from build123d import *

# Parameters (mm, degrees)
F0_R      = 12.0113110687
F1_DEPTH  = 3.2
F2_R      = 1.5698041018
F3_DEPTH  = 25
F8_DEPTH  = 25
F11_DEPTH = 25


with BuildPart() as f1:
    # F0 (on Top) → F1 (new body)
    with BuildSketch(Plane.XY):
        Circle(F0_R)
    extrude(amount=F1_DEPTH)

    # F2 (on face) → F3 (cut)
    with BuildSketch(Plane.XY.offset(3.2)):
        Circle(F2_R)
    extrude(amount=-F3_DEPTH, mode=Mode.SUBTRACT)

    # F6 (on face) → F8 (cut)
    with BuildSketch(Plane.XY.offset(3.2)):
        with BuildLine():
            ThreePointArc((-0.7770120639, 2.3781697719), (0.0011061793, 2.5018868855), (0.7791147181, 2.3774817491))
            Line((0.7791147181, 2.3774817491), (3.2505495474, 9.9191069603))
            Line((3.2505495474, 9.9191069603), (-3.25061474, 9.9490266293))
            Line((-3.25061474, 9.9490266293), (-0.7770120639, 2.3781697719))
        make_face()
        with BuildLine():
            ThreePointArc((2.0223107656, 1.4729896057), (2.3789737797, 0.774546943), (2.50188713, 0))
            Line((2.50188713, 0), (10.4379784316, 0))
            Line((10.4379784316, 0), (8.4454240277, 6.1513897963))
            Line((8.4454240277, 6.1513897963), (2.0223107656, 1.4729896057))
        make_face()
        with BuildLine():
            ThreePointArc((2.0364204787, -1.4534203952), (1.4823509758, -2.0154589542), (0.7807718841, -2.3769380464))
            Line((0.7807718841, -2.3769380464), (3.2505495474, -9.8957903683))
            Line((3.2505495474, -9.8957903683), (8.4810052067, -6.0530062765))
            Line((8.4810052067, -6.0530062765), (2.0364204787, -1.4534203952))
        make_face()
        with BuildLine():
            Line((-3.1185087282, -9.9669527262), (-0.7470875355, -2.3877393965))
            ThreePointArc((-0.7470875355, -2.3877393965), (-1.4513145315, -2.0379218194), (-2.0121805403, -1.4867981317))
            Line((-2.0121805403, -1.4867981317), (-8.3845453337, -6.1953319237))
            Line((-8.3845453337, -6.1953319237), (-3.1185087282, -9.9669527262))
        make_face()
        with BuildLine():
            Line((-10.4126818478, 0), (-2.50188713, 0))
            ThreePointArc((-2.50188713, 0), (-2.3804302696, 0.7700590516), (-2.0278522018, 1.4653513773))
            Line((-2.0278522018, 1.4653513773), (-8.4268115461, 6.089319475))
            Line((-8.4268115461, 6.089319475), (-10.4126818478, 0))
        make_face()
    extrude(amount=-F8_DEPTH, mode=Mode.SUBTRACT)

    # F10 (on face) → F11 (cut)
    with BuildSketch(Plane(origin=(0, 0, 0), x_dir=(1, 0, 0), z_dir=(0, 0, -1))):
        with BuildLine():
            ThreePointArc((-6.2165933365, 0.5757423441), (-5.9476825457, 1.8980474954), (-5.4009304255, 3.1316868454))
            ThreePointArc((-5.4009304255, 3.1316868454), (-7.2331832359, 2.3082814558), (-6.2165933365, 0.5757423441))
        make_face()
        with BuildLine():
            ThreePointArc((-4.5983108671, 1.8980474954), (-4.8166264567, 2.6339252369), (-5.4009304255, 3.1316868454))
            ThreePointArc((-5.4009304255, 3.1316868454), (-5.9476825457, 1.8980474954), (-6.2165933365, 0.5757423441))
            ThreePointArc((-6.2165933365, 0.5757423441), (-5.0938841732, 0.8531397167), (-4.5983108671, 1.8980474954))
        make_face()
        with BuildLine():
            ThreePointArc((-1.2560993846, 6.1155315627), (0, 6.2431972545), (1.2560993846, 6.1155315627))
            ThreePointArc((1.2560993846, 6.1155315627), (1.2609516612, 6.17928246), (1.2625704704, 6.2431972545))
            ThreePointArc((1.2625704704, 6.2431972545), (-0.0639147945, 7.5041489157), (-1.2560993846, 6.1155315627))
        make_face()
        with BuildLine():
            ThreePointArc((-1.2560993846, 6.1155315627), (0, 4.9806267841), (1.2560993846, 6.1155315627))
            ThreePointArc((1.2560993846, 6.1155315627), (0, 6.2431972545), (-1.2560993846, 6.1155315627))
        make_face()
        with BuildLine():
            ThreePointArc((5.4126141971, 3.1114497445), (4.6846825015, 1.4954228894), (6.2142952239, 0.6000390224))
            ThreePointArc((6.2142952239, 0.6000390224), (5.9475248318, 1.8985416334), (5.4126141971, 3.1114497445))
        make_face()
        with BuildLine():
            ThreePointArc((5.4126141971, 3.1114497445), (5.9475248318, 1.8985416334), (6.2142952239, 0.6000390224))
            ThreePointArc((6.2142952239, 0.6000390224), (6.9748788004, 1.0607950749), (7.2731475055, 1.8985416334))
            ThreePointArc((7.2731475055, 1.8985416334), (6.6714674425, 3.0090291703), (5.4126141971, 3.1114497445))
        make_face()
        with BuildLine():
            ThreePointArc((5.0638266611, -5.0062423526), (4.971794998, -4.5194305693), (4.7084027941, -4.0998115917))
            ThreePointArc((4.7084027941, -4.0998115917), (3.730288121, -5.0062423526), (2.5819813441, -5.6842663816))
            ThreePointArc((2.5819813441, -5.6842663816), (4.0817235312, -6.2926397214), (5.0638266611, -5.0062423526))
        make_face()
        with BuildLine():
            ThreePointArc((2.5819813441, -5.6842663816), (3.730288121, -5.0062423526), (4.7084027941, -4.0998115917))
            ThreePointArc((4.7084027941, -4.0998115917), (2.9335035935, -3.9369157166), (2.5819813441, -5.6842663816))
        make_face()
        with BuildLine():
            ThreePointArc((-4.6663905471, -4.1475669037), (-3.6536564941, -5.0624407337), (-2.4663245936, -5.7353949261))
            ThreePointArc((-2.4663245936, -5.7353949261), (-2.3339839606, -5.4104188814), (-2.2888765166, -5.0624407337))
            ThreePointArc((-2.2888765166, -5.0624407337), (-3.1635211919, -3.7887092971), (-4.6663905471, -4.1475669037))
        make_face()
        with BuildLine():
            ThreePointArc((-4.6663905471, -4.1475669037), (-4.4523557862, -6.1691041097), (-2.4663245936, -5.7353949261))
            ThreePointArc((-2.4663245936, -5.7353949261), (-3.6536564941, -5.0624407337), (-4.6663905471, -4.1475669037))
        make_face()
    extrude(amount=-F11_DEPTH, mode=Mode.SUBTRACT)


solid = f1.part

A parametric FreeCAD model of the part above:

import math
import FreeCAD as App
import Part
import Sketcher
from FreeCAD import Vector
Q = App.Units.Quantity

doc = App.newDocument("Part")
body = doc.addObject("PartDesign::Body", "Body")

sketch1 = doc.addObject("Sketcher::SketchObject", "Sketch")
body.addObject(sketch1)
sketch1.AttachmentSupport = (doc.XY_Plane, [""])
sketch1.MapMode = "FlatFace"
sketch1.addGeometry(Part.Circle(Vector(0, 0, 0), Vector(0, 0, 1), 12), False)
sketch1.addConstraint(Sketcher.Constraint("Coincident", 0, 3, -1, 1))
sketch1.addConstraint(Sketcher.Constraint("Diameter", 0, Q("24.022622 mm")))
pad1 = doc.addObject("PartDesign::Pad", "Pad")
body.addObject(pad1)
pad1.Profile = sketch1
pad1.Length = 3.2

sketch2 = doc.addObject("Sketcher::SketchObject", "Sketch001")
body.addObject(sketch2)
sketch2.AttachmentSupport = (doc.XY_Plane, [""])
sketch2.MapMode = "FlatFace"
sketch2.AttachmentOffset = App.Placement(Vector(0, 0, 3.2), App.Rotation())
sketch2.addGeometry(Part.Circle(Vector(0, 0, 0), Vector(0, 0, 1), 1.6), False)
sketch2.addConstraint(Sketcher.Constraint("Coincident", 0, 3, -1, 1))
sketch2.addConstraint(Sketcher.Constraint("Diameter", 0, Q("3.139608 mm")))
pocket1 = doc.addObject("PartDesign::Pocket", "Pocket")
body.addObject(pocket1)
pocket1.Profile = sketch2
pocket1.Length = 25

sketch3 = doc.addObject("Sketcher::SketchObject", "Sketch002")
body.addObject(sketch3)
sketch3.AttachmentSupport = (doc.XY_Plane, [""])
sketch3.MapMode = "FlatFace"
sketch3.AttachmentOffset = App.Placement(Vector(0, 0, 3.2), App.Rotation())
sketch3.addGeometry(Part.ArcOfCircle(Part.Circle(Vector(0, 0, 0), Vector(0, 0, 1), 2.5), math.radians(72), math.radians(108)), False)
sketch3.addGeometry(Part.LineSegment(Vector(0.8, 2.4, 0), Vector(3.3, 9.9, 0)), False)
sketch3.addGeometry(Part.LineSegment(Vector(3.3, 9.9, 0), Vector(-3.3, 9.9, 0)), False)
sketch3.addGeometry(Part.LineSegment(Vector(-3.3, 9.9, 0), Vector(-0.8, 2.4, 0)), False)
sketch3.addGeometry(Part.ArcOfCircle(Part.Circle(Vector(0, 0, 0), Vector(0, 0, 1), 2.5), math.radians(0), math.radians(36)), False)
sketch3.addGeometry(Part.LineSegment(Vector(2.5, 0, 0), Vector(10.4, 0, 0)), False)
sketch3.addGeometry(Part.LineSegment(Vector(10.4, 0, 0), Vector(8.4, 6.2, 0)), False)
sketch3.addGeometry(Part.LineSegment(Vector(8.4, 6.2, 0), Vector(2, 1.5, 0)), False)
sketch3.addGeometry(Part.ArcOfCircle(Part.Circle(Vector(0, 0, 0), Vector(0, 0, 1), 2.5), math.radians(-72), math.radians(-36)), False)
sketch3.addGeometry(Part.LineSegment(Vector(0.8, -2.4, 0), Vector(3.3, -9.9, 0)), False)
sketch3.addGeometry(Part.LineSegment(Vector(3.3, -9.9, 0), Vector(8.5, -6.1, 0)), False)
sketch3.addGeometry(Part.LineSegment(Vector(8.5, -6.1, 0), Vector(2, -1.5, 0)), False)
sketch3.addGeometry(Part.LineSegment(Vector(-3.1, -10, 0), Vector(-0.7, -2.4, 0)), False)
sketch3.addGeometry(Part.ArcOfCircle(Part.Circle(Vector(0, 0, 0), Vector(0, 0, 1), 2.5), math.radians(-144), math.radians(-107)), False)
sketch3.addGeometry(Part.LineSegment(Vector(-2, -1.5, 0), Vector(-8.4, -6.2, 0)), False)
sketch3.addGeometry(Part.LineSegment(Vector(-8.4, -6.2, 0), Vector(-3.1, -10, 0)), False)
sketch3.addGeometry(Part.LineSegment(Vector(-10.4, 0, 0), Vector(-2.5, 0, 0)), False)
sketch3.addGeometry(Part.ArcOfCircle(Part.Circle(Vector(0, 0, 0), Vector(0, 0, 1), 2.5), math.radians(144), math.radians(180)), False)
sketch3.addGeometry(Part.LineSegment(Vector(-2, 1.5, 0), Vector(-8.4, 6.1, 0)), False)
sketch3.addGeometry(Part.LineSegment(Vector(-8.4, 6.1, 0), Vector(-10.4, 0, 0)), False)
sketch3.addConstraint(Sketcher.Constraint("Coincident", 0, 1, 1, 1))
sketch3.addConstraint(Sketcher.Constraint("Coincident", 1, 2, 2, 1))
sketch3.addConstraint(Sketcher.Constraint("Coincident", 2, 2, 3, 1))
sketch3.addConstraint(Sketcher.Constraint("Coincident", 3, 2, 0, 2))
sketch3.addConstraint(Sketcher.Constraint("Coincident", 4, 1, 5, 1))
sketch3.addConstraint(Sketcher.Constraint("Coincident", 5, 2, 6, 1))
sketch3.addConstraint(Sketcher.Constraint("Coincident", 6, 2, 7, 1))
sketch3.addConstraint(Sketcher.Constraint("Coincident", 7, 2, 4, 2))
sketch3.addConstraint(Sketcher.Constraint("Coincident", 8, 1, 9, 1))
sketch3.addConstraint(Sketcher.Constraint("Coincident", 9, 2, 10, 1))
sketch3.addConstraint(Sketcher.Constraint("Coincident", 10, 2, 11, 1))
sketch3.addConstraint(Sketcher.Constraint("Coincident", 11, 2, 8, 2))
sketch3.addConstraint(Sketcher.Constraint("Coincident", 12, 2, 13, 2))
sketch3.addConstraint(Sketcher.Constraint("Coincident", 13, 1, 14, 1))
sketch3.addConstraint(Sketcher.Constraint("Coincident", 14, 2, 15, 1))
sketch3.addConstraint(Sketcher.Constraint("Coincident", 15, 2, 12, 1))
sketch3.addConstraint(Sketcher.Constraint("Coincident", 16, 2, 17, 2))
sketch3.addConstraint(Sketcher.Constraint("Coincident", 17, 1, 18, 1))
sketch3.addConstraint(Sketcher.Constraint("Coincident", 18, 2, 19, 1))
sketch3.addConstraint(Sketcher.Constraint("Coincident", 19, 2, 16, 1))
sketch3.addConstraint(Sketcher.Constraint("Horizontal", 5))
sketch3.addConstraint(Sketcher.Constraint("Horizontal", 16))
sketch3.addConstraint(Sketcher.Constraint("Coincident", 0, 3, -1, 1))
sketch3.addConstraint(Sketcher.Constraint("Coincident", 4, 3, -1, 1))
sketch3.addConstraint(Sketcher.Constraint("Coincident", 8, 3, -1, 1))
sketch3.addConstraint(Sketcher.Constraint("Coincident", 13, 3, -1, 1))
sketch3.addConstraint(Sketcher.Constraint("Coincident", 17, 3, -1, 1))
sketch3.addConstraint(Sketcher.Constraint("Equal", 0, 4))
sketch3.addConstraint(Sketcher.Constraint("Equal", 4, 8))
sketch3.addConstraint(Sketcher.Constraint("Equal", 8, 13))
sketch3.addConstraint(Sketcher.Constraint("Equal", 13, 17))
sketch3.addConstraint(Sketcher.Constraint("PointOnObject", 4, 1, -1))
sketch3.addConstraint(Sketcher.Constraint("PointOnObject", 16, 2, -1))
sketch3.addConstraint(Sketcher.Constraint("Vertical", 1, 2, 9, 2))
sketch3.addConstraint(Sketcher.Constraint("Radius", 0, Q("2.501887 mm")))
sketch3.addConstraint(Sketcher.Constraint("DistanceX", 5, 1, 5, 2, Q("7.936091 mm")))
sketch3.addConstraint(Sketcher.Constraint("DistanceY", 13, 1, -1, 1, Q("1.486798 mm")))
sketch3.addConstraint(Sketcher.Constraint("DistanceY", 12, 2, 8, 1, Q("0.010801 mm")))
sketch3.addConstraint(Sketcher.Constraint("DistanceX", 18, 2, 3, 2, Q("7.649799 mm")))
sketch3.addConstraint(Sketcher.Constraint("DistanceX", 19, 2, 13, 1, Q("8.400501 mm")))
sketch3.addConstraint(Sketcher.Constraint("Distance", 3, Q("7.964709 mm")))
sketch3.addConstraint(Sketcher.Constraint("Distance", 7, Q("7.946308 mm")))
sketch3.addConstraint(Sketcher.Constraint("Distance", 10, Q("6.490351 mm")))
sketch3.addConstraint(Sketcher.Constraint("Distance", 11, Q("7.91763 mm")))
sketch3.addConstraint(Sketcher.Constraint("Distance", 19, Q("6.404958 mm")))
sketch3.addConstraint(Sketcher.Constraint("DistanceY", -1, 1, 0, 1, Q("2.377482 mm")))
sketch3.addConstraint(Sketcher.Constraint("DistanceX", -1, 1, 1, 2, Q("3.25055 mm")))
sketch3.addConstraint(Sketcher.Constraint("DistanceY", -1, 1, 3, 2, Q("2.37817 mm")))
sketch3.addConstraint(Sketcher.Constraint("DistanceY", -1, 1, 6, 2, Q("6.15139 mm")))
sketch3.addConstraint(Sketcher.Constraint("DistanceX", -1, 1, 7, 2, Q("2.022311 mm")))
sketch3.addConstraint(Sketcher.Constraint("DistanceX", -1, 1, 8, 1, Q("0.780772 mm")))
sketch3.addConstraint(Sketcher.Constraint("DistanceY", 9, 2, -1, 1, Q("9.89579 mm")))
sketch3.addConstraint(Sketcher.Constraint("DistanceX", -1, 1, 11, 2, Q("2.03642 mm")))
sketch3.addConstraint(Sketcher.Constraint("DistanceY", 14, 2, -1, 1, Q("6.195332 mm")))
sketch3.addConstraint(Sketcher.Constraint("DistanceX", 15, 2, -1, 1, Q("3.118509 mm")))
sketch3.addConstraint(Sketcher.Constraint("DistanceY", -1, 1, 17, 1, Q("1.465351 mm")))
sketch3.addConstraint(Sketcher.Constraint("DistanceY", 1, 2, 2, 2, Q("0.02992 mm")))
sketch3.addConstraint(Sketcher.Constraint("DistanceX", 2, 2, 0, 1, Q("4.029729 mm")))
sketch3.addConstraint(Sketcher.Constraint("DistanceY", 15, 2, 14, 2, Q("3.771621 mm")))
sketch3.addConstraint(Sketcher.Constraint("Distance", 14, Q("7.923214 mm")))
pocket2 = doc.addObject("PartDesign::Pocket", "Pocket001")
body.addObject(pocket2)
pocket2.Profile = sketch3
pocket2.Length = 25

sketch4 = doc.addObject("Sketcher::SketchObject", "Sketch003")
body.addObject(sketch4)
sketch4.AttachmentSupport = (doc.XY_Plane, [""])
sketch4.MapMode = "FlatFace"
sketch4.addGeometry(Part.ArcOfCircle(Part.Circle(Vector(-5.95, -1.9, 0), Vector(0, 0, 1), 1.35), math.radians(101), math.radians(294)), False)
sketch4.addGeometry(Part.ArcOfCircle(Part.Circle(Vector(-5.95, -1.9, 0), Vector(0, 0, 1), 1.35), math.radians(0), math.radians(101)), False)
sketch4.addGeometry(Part.ArcOfCircle(Part.Circle(Vector(-5.95, -1.9, 0), Vector(0, 0, 1), 1.35), math.radians(-66), math.radians(0)), False)
sketch4.addGeometry(Part.ArcOfCircle(Part.Circle(Vector(0, -6.24, 0), Vector(0, 0, 1), 1.26), math.radians(0), math.radians(5.8)), False)
sketch4.addGeometry(Part.ArcOfCircle(Part.Circle(Vector(0, -6.24, 0), Vector(0, 0, 1), 1.26), math.radians(174), math.radians(360)), False)
sketch4.addGeometry(Part.ArcOfCircle(Part.Circle(Vector(0, -6.24, 0), Vector(0, 0, 1), 1.26), math.radians(6), math.radians(174)), False)
sketch4.addGeometry(Part.ArcOfCircle(Part.Circle(Vector(5.95, -1.9, 0), Vector(0, 0, 1), 1.33), math.radians(78), math.radians(246)), False)
sketch4.addGeometry(Part.ArcOfCircle(Part.Circle(Vector(5.95, -1.9, 0), Vector(0, 0, 1), 1.33), math.radians(0), math.radians(78)), False)
sketch4.addGeometry(Part.ArcOfCircle(Part.Circle(Vector(5.95, -1.9, 0), Vector(0, 0, 1), 1.33), math.radians(-114), math.radians(0)), False)
sketch4.addGeometry(Part.ArcOfCircle(Part.Circle(Vector(3.73, 5.01, 0), Vector(0, 0, 1), 1.33), math.radians(-43), math.radians(0)), False)
sketch4.addGeometry(Part.ArcOfCircle(Part.Circle(Vector(3.73, 5.01, 0), Vector(0, 0, 1), 1.33), math.radians(149), math.radians(317)), False)
sketch4.addGeometry(Part.ArcOfCircle(Part.Circle(Vector(3.73, 5.01, 0), Vector(0, 0, 1), 1.33), math.radians(0), math.radians(149)), False)
sketch4.addGeometry(Part.ArcOfCircle(Part.Circle(Vector(-3.65, 5.06, 0), Vector(0, 0, 1), 1.36), math.radians(0), math.radians(30)), False)
sketch4.addGeometry(Part.ArcOfCircle(Part.Circle(Vector(-3.65, 5.06, 0), Vector(0, 0, 1), 1.36), math.radians(-138), math.radians(0)), False)
sketch4.addGeometry(Part.ArcOfCircle(Part.Circle(Vector(-3.65, 5.06, 0), Vector(0, 0, 1), 1.36), math.radians(30), math.radians(222)), False)
sketch4.addConstraint(Sketcher.Constraint("Tangent", 0, 1, 1, 2))
sketch4.addConstraint(Sketcher.Constraint("Tangent", 1, 1, 2, 2))
sketch4.addConstraint(Sketcher.Constraint("Tangent", 2, 1, 0, 2))
sketch4.addConstraint(Sketcher.Constraint("Tangent", 3, 1, 4, 2))
sketch4.addConstraint(Sketcher.Constraint("Tangent", 4, 1, 5, 2))
sketch4.addConstraint(Sketcher.Constraint("Tangent", 5, 1, 3, 2))
sketch4.addConstraint(Sketcher.Constraint("Tangent", 6, 1, 7, 2))
sketch4.addConstraint(Sketcher.Constraint("Tangent", 7, 1, 8, 2))
sketch4.addConstraint(Sketcher.Constraint("Tangent", 8, 1, 6, 2))
sketch4.addConstraint(Sketcher.Constraint("Tangent", 9, 1, 10, 2))
sketch4.addConstraint(Sketcher.Constraint("Tangent", 10, 1, 11, 2))
sketch4.addConstraint(Sketcher.Constraint("Tangent", 11, 1, 9, 2))
sketch4.addConstraint(Sketcher.Constraint("Tangent", 12, 1, 13, 2))
sketch4.addConstraint(Sketcher.Constraint("Tangent", 13, 1, 14, 2))
sketch4.addConstraint(Sketcher.Constraint("Tangent", 14, 1, 12, 2))
sketch4.addConstraint(Sketcher.Constraint("Symmetric", 4, 1, 5, 1, -2))
sketch4.addConstraint(Sketcher.Constraint("Horizontal", 2, 3, 1, 1))
sketch4.addConstraint(Sketcher.Constraint("Horizontal", 5, 3, 3, 1))
sketch4.addConstraint(Sketcher.Constraint("Horizontal", 8, 3, 7, 1))
sketch4.addConstraint(Sketcher.Constraint("Horizontal", 10, 3, 11, 1))
sketch4.addConstraint(Sketcher.Constraint("Horizontal", 14, 3, 12, 1))
sketch4.addConstraint(Sketcher.Constraint("Radius", 0, Q("1.349372 mm")))
sketch4.addConstraint(Sketcher.Constraint("Radius", 3, Q("1.26257 mm")))
sketch4.addConstraint(Sketcher.Constraint("Radius", 9, Q("1.333539 mm")))
sketch4.addConstraint(Sketcher.Constraint("Radius", 12, Q("1.36478 mm")))
sketch4.addConstraint(Sketcher.Constraint("Radius", 6, Q("1.325623 mm")))
sketch4.addConstraint(Sketcher.Constraint("DistanceX", 4, 1, -1, 1, Q("1.256099 mm")))
sketch4.addConstraint(Sketcher.Constraint("DistanceY", 9, 3, 12, 3, Q("0.056198 mm")))
sketch4.addConstraint(Sketcher.Constraint("DistanceY", 6, 3, -1, 1, Q("1.898542 mm")))
sketch4.addConstraint(Sketcher.Constraint("DistanceX", -1, 1, 9, 3, Q("3.730288 mm")))
sketch4.addConstraint(Sketcher.Constraint("DistanceY", -1, 1, 12, 3, Q("5.062441 mm")))
sketch4.addConstraint(Sketcher.Constraint("DistanceX", 1, 1, -1, 1, Q("4.598311 mm")))
sketch4.addConstraint(Sketcher.Constraint("DistanceX", 2, 1, -1, 1, Q("5.40093 mm")))
sketch4.addConstraint(Sketcher.Constraint("DistanceY", 4, 1, -1, 1, Q("6.115532 mm")))
sketch4.addConstraint(Sketcher.Constraint("DistanceY", 6, 1, -1, 1, Q("0.600039 mm")))
sketch4.addConstraint(Sketcher.Constraint("DistanceY", 8, 1, -1, 1, Q("3.11145 mm")))
sketch4.addConstraint(Sketcher.Constraint("DistanceY", -1, 1, 9, 1, Q("4.099812 mm")))
sketch4.addConstraint(Sketcher.Constraint("DistanceX", -1, 1, 10, 1, Q("2.581981 mm")))
sketch4.addConstraint(Sketcher.Constraint("DistanceX", 13, 1, -1, 1, Q("4.666391 mm")))
sketch4.addConstraint(Sketcher.Constraint("DistanceY", 3, 3, 0, 3, Q("4.34515 mm")))
sketch4.addConstraint(Sketcher.Constraint("DistanceX", 0, 1, 0, 3, Q("0.268911 mm")))
sketch4.addConstraint(Sketcher.Constraint("DistanceX", 5, 1, 7, 1, Q("6.017048 mm")))
sketch4.addConstraint(Sketcher.Constraint("DistanceY", 0, 1, 13, 1, Q("4.723309 mm")))
sketch4.addConstraint(Sketcher.Constraint("DistanceX", 14, 1, 12, 1, Q("0.177448 mm")))
pocket3 = doc.addObject("PartDesign::Pocket", "Pocket002")
body.addObject(pocket3)
pocket3.Profile = sketch4
pocket3.Length = 25
pocket3.Reversed = True

doc.recompute()
